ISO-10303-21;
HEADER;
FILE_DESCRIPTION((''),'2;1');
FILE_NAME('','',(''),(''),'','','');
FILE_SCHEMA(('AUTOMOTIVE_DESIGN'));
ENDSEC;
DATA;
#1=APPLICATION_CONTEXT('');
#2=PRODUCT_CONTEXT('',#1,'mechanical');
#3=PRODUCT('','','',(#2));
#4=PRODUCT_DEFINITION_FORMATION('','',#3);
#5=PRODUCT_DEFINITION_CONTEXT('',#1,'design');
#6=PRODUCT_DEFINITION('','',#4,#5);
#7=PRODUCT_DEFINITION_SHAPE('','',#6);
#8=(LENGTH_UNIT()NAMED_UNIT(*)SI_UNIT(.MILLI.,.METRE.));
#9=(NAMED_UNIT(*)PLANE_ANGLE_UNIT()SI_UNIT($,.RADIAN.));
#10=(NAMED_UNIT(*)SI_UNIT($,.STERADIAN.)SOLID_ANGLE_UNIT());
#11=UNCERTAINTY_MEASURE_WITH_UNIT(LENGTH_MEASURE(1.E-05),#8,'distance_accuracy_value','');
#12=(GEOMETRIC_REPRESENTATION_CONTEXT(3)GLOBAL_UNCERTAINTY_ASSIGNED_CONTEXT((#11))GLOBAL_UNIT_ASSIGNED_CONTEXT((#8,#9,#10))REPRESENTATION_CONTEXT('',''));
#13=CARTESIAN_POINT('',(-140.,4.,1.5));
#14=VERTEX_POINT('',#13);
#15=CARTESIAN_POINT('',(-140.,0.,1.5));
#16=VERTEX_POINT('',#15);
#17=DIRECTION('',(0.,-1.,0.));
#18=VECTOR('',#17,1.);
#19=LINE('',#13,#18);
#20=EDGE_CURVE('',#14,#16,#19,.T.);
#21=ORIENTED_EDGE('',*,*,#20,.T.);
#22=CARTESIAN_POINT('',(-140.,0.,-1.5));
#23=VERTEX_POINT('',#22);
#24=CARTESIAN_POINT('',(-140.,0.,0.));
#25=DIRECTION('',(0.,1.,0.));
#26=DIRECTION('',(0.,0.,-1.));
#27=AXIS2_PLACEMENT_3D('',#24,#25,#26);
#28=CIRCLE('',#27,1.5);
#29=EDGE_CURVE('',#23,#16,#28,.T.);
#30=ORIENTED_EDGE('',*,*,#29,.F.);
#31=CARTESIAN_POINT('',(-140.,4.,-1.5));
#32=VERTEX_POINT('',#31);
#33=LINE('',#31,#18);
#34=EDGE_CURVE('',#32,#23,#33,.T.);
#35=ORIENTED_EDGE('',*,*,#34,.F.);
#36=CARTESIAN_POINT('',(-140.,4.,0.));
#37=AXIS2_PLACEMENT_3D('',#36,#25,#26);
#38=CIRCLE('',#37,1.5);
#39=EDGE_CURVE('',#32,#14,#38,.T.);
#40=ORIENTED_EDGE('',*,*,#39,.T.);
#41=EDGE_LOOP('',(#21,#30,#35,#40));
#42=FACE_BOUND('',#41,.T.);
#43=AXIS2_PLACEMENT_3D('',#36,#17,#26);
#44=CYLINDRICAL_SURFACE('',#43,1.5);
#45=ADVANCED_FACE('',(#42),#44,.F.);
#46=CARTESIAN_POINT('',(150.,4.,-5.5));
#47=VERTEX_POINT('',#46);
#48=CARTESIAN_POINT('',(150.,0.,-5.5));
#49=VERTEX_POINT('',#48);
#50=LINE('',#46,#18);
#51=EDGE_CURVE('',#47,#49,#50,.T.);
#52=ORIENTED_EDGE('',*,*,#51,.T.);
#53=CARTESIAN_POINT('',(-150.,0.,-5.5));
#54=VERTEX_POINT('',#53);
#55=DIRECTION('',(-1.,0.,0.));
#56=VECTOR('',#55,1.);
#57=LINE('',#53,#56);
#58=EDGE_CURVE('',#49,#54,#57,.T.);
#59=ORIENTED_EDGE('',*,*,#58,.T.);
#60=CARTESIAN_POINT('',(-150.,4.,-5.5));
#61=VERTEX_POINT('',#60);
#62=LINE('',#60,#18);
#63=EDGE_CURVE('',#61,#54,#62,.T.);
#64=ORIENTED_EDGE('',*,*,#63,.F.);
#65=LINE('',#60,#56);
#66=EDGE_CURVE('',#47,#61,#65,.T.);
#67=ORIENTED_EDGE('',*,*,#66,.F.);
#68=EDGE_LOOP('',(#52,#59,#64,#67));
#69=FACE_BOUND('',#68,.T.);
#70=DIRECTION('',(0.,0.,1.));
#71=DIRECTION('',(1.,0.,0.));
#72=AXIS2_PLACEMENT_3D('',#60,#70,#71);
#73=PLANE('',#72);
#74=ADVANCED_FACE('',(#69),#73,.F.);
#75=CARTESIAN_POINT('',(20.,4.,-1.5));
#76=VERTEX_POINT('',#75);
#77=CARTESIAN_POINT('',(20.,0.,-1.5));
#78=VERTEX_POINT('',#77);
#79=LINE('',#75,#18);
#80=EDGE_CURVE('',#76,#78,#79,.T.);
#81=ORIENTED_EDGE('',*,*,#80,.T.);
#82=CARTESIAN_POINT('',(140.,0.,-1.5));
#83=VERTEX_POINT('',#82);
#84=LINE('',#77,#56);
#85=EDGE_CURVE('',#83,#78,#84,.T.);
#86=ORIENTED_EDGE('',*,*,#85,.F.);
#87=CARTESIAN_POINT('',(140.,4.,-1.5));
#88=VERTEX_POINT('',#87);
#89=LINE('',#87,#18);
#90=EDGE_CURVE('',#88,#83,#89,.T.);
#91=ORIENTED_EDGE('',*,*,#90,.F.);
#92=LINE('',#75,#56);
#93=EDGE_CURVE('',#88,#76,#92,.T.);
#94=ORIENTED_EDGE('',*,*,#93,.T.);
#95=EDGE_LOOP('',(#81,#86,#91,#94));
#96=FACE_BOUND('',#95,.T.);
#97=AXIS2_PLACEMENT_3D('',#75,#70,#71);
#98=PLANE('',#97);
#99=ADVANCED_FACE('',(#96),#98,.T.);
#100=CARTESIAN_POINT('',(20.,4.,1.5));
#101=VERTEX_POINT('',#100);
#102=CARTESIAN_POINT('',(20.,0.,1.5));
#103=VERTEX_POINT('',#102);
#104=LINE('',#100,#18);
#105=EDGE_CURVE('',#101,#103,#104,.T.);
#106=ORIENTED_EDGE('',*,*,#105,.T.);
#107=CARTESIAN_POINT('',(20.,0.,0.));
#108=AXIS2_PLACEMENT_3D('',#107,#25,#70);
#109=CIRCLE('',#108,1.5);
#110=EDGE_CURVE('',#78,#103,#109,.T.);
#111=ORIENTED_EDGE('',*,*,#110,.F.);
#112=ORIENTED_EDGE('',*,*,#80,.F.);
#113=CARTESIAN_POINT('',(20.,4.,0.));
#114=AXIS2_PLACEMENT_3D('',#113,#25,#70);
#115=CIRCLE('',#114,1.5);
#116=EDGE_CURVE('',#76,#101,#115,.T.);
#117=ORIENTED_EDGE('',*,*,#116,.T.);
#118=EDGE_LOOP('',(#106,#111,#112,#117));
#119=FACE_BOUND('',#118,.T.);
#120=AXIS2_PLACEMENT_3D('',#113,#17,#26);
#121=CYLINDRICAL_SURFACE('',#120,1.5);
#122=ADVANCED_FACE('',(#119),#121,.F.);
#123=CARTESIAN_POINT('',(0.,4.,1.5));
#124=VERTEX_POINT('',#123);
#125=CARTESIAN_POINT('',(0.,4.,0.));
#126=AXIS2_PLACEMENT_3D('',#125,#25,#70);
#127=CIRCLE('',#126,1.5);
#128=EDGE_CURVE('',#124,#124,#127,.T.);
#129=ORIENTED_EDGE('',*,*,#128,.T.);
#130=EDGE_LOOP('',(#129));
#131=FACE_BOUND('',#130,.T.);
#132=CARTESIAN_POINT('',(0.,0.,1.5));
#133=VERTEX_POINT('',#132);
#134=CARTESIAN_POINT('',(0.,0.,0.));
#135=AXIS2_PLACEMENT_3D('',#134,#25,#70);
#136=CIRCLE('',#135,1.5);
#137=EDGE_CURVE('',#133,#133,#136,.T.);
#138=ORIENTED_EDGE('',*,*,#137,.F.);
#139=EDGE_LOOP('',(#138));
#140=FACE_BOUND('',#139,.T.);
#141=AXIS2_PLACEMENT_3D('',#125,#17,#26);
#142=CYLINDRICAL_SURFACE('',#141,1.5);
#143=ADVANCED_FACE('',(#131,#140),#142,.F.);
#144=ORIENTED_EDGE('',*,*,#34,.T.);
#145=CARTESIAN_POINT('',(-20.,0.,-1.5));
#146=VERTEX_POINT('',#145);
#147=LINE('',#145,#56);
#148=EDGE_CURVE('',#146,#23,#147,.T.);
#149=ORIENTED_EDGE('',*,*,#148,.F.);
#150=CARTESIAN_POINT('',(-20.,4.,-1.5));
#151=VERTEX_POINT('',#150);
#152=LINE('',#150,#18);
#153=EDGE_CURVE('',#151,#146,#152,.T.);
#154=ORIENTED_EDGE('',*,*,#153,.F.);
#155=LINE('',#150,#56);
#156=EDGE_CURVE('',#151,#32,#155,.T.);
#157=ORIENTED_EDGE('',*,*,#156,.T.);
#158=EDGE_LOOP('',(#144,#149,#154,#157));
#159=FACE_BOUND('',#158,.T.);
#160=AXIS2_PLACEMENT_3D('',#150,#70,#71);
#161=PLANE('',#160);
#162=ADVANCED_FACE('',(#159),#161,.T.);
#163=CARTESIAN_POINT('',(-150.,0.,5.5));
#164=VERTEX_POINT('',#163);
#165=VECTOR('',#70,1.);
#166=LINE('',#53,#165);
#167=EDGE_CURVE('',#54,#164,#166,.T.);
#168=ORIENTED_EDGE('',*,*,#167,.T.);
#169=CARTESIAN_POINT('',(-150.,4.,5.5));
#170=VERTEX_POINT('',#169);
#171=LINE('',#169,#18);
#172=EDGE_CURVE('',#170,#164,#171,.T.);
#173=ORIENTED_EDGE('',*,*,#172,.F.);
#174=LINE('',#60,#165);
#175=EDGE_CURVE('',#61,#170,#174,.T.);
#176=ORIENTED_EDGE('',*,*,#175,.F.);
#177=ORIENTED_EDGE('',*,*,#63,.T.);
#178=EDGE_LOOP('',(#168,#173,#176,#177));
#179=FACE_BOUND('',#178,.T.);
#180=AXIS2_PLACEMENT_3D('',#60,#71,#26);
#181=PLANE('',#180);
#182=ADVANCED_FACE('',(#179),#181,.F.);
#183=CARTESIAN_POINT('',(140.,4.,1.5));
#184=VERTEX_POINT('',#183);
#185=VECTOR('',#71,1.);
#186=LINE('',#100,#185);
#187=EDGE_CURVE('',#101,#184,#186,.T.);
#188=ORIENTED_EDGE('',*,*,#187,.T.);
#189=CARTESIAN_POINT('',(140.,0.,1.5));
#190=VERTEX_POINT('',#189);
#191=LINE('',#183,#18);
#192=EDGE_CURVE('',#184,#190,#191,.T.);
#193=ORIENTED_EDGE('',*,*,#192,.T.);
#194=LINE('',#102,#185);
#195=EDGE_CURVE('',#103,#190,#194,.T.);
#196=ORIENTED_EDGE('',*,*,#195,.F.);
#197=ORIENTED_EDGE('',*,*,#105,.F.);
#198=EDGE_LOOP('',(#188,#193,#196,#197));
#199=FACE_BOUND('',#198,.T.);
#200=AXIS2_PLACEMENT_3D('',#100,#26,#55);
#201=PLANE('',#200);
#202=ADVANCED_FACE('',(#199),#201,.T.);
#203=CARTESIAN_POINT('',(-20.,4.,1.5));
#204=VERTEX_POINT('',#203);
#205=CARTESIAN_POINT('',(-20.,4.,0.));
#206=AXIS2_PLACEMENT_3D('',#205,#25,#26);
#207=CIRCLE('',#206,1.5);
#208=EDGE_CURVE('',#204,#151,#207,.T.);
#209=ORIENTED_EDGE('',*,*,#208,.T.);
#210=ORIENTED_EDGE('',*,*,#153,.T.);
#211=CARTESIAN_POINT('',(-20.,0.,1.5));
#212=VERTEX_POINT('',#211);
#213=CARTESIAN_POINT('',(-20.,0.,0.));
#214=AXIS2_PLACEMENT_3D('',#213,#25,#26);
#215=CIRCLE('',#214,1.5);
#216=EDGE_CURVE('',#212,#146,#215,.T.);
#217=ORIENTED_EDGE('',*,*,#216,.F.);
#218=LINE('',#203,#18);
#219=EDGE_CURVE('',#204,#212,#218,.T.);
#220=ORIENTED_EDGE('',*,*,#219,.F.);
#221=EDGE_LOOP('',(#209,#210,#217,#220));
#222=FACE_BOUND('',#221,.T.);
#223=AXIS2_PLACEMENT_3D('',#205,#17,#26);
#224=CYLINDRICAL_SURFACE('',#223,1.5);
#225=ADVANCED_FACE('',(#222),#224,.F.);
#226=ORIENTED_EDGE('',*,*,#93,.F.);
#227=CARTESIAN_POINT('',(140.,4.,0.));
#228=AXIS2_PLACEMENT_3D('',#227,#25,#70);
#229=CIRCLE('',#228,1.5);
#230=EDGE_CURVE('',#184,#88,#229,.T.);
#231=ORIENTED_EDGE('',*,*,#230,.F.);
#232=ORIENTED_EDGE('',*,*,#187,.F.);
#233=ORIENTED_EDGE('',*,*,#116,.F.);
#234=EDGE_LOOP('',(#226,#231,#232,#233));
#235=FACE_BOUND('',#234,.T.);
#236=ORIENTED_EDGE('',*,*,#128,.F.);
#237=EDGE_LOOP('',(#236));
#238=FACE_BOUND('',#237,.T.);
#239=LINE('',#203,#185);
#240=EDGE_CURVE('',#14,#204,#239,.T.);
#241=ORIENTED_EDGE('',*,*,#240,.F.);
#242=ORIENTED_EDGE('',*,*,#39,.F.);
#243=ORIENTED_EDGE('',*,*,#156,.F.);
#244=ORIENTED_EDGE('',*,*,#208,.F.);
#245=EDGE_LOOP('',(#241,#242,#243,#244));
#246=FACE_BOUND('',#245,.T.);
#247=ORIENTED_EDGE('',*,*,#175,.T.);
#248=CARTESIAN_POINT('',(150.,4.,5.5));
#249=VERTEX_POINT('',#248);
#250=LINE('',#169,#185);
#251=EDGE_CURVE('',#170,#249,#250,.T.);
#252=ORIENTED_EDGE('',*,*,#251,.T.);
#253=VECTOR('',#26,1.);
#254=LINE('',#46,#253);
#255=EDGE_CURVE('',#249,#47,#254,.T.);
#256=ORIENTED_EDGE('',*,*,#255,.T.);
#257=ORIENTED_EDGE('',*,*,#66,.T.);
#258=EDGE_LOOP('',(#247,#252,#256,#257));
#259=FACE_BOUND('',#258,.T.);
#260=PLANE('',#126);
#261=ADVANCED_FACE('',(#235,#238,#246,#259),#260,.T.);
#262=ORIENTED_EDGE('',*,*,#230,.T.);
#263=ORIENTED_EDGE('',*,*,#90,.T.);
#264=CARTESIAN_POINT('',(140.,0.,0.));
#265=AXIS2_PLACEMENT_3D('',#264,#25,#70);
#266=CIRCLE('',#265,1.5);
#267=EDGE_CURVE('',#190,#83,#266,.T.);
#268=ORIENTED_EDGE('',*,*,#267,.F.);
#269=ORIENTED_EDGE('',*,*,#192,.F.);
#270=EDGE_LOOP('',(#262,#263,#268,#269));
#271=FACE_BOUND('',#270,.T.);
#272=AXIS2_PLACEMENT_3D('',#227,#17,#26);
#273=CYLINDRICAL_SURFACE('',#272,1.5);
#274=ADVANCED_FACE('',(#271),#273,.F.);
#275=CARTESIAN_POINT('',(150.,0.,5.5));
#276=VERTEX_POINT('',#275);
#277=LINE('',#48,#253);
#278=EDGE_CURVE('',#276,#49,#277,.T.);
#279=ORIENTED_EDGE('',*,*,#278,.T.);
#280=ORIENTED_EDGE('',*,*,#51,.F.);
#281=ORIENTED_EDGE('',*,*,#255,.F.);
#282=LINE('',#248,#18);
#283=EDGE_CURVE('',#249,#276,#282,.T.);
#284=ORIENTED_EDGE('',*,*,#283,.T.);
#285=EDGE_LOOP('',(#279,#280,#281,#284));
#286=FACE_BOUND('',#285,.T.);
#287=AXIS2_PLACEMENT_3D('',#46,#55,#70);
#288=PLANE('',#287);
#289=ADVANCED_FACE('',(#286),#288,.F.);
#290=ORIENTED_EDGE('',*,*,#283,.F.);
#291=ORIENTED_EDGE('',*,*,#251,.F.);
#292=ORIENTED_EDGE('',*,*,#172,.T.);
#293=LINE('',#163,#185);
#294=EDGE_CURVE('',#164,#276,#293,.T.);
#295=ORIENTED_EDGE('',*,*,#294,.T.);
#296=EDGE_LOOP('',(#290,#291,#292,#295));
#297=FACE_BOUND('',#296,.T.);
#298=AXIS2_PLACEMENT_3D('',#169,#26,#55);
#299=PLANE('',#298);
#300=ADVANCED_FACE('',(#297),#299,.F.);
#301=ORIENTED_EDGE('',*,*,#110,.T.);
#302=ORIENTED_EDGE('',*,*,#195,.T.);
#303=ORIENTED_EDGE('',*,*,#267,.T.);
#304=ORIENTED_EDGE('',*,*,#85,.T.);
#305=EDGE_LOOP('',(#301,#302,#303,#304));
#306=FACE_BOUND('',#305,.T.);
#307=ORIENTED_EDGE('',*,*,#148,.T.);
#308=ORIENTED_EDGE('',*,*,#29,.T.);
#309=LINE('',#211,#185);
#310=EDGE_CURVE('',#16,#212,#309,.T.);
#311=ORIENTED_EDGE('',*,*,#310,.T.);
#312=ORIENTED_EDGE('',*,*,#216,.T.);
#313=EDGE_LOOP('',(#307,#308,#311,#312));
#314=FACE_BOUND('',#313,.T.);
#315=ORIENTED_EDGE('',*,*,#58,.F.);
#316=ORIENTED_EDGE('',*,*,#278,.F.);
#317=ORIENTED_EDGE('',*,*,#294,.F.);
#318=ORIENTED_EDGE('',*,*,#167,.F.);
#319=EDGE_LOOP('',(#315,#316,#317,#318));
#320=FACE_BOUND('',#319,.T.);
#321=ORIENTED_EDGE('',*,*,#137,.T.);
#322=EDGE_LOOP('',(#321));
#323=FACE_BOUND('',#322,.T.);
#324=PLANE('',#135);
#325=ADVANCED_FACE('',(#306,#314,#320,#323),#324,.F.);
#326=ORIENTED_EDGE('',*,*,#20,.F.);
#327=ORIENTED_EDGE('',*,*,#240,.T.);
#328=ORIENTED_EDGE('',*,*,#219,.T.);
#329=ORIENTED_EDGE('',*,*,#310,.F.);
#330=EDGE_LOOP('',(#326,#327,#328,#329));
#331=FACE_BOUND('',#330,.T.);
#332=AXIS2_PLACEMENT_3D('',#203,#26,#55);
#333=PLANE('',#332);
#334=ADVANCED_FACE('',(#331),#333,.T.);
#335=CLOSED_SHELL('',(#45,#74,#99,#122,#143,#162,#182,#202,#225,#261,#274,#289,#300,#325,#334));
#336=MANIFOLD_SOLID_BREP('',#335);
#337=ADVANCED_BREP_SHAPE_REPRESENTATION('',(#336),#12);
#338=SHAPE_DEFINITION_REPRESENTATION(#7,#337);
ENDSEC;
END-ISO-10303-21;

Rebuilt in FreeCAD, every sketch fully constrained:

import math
import FreeCAD as App
import Part
import Sketcher

V = App.Vector

doc = App.newDocument("Part")
body = doc.addObject("PartDesign::Body", "Body")

# Sketch on XZ plane
sketch1 = body.newObject("Sketcher::SketchObject", "Sketch")
sketch1.AttachmentSupport = (doc.getObject("XZ_Plane"), [""])
sketch1.MapMode = "FlatFace"
sketch1.addGeometry(Part.LineSegment(V(-150, -5.5, 0), V(-150, 5.5, 0)), False)
sketch1.addGeometry(Part.LineSegment(V(-150, 5.5, 0), V(150, 5.5, 0)), False)
sketch1.addGeometry(Part.LineSegment(V(150, 5.5, 0), V(150, -5.5, 0)), False)
sketch1.addGeometry(Part.LineSegment(V(150, -5.5, 0), V(-150, -5.5, 0)), False)
sketch1.addGeometry(Part.ArcOfCircle(Part.Circle(V(-20, 0, 0), V(0, 0, 1), 1.5), math.radians(-90), math.radians(90)), False)
sketch1.addGeometry(Part.LineSegment(V(-20, 1.5, 0), V(-140, 1.5, 0)), False)
sketch1.addGeometry(Part.ArcOfCircle(Part.Circle(V(-140, 0, 0), V(0, 0, 1), 1.5), math.radians(90), math.radians(270)), False)
sketch1.addGeometry(Part.LineSegment(V(-140, -1.5, 0), V(-20, -1.5, 0)), False)
sketch1.addGeometry(Part.Circle(V(0, 0, 0), V(0, 0, 1), 1.5), False)
sketch1.addGeometry(Part.ArcOfCircle(Part.Circle(V(20, 0, 0), V(0, 0, 1), 1.5), math.radians(90), math.radians(270)), False)
sketch1.addGeometry(Part.LineSegment(V(20, -1.5, 0), V(140, -1.5, 0)), False)
sketch1.addGeometry(Part.ArcOfCircle(Part.Circle(V(140, 0, 0), V(0, 0, 1), 1.5), math.radians(-90), math.radians(90)), False)
sketch1.addGeometry(Part.LineSegment(V(140, 1.5, 0), V(20, 1.5, 0)), False)
sketch1.addConstraint(Sketcher.Constraint("Coincident", 0, 2, 1, 1))
sketch1.addConstraint(Sketcher.Constraint("Coincident", 1, 2, 2, 1))
sketch1.addConstraint(Sketcher.Constraint("Coincident", 2, 2, 3, 1))
sketch1.addConstraint(Sketcher.Constraint("Coincident", 3, 2, 0, 1))
sketch1.addConstraint(Sketcher.Constraint("Tangent", 4, 2, 5, 1))
sketch1.addConstraint(Sketcher.Constraint("Tangent", 5, 2, 6, 1))
sketch1.addConstraint(Sketcher.Constraint("Tangent", 6, 2, 7, 1))
sketch1.addConstraint(Sketcher.Constraint("Tangent", 7, 2, 4, 1))
sketch1.addConstraint(Sketcher.Constraint("Tangent", 9, 2, 10, 1))
sketch1.addConstraint(Sketcher.Constraint("Tangent", 10, 2, 11, 1))
sketch1.addConstraint(Sketcher.Constraint("Tangent", 11, 2, 12, 1))
sketch1.addConstraint(Sketcher.Constraint("Tangent", 12, 2, 9, 1))
sketch1.addConstraint(Sketcher.Constraint("Vertical", 0))
sketch1.addConstraint(Sketcher.Constraint("Horizontal", 1))
sketch1.addConstraint(Sketcher.Constraint("Vertical", 2))
sketch1.addConstraint(Sketcher.Constraint("Horizontal", 3))
sketch1.addConstraint(Sketcher.Constraint("Horizontal", 5))
sketch1.addConstraint(Sketcher.Constraint("Horizontal", 7))
sketch1.addConstraint(Sketcher.Constraint("Horizontal", 10))
sketch1.addConstraint(Sketcher.Constraint("Horizontal", 12))
sketch1.addConstraint(Sketcher.Constraint("Coincident", 8, 3, -1, 1))
sketch1.addConstraint(Sketcher.Constraint("Equal", 6, 8))
sketch1.addConstraint(Sketcher.Constraint("Equal", 8, 9))
sketch1.addConstraint(Sketcher.Constraint("Symmetric", 4, 3, 9, 3, -1, 1))
sketch1.addConstraint(Sketcher.Constraint("Symmetric", 0, 2, 2, 2, -1, 1))
sketch1.addConstraint(Sketcher.Constraint("Symmetric", 6, 3, 11, 3, -2))
sketch1.addConstraint(Sketcher.Constraint("Diameter", 8, 3.0))
sketch1.addConstraint(Sketcher.Constraint("DistanceX", 1, 1, 1, 2, 300.0))
sketch1.addConstraint(Sketcher.Constraint("DistanceX", 5, 2, 5, 1, 120.0))
sketch1.addConstraint(Sketcher.Constraint("DistanceY", 0, 1, 0, 2, 11.0))
sketch1.addConstraint(Sketcher.Constraint("DistanceX", 4, 3, -1, 1, 20.0))
pad1 = body.newObject("PartDesign::Pad", "Pad")
pad1.Profile = sketch1
pad1.Length = 4
pad1.Reversed = True

doc.recompute()
